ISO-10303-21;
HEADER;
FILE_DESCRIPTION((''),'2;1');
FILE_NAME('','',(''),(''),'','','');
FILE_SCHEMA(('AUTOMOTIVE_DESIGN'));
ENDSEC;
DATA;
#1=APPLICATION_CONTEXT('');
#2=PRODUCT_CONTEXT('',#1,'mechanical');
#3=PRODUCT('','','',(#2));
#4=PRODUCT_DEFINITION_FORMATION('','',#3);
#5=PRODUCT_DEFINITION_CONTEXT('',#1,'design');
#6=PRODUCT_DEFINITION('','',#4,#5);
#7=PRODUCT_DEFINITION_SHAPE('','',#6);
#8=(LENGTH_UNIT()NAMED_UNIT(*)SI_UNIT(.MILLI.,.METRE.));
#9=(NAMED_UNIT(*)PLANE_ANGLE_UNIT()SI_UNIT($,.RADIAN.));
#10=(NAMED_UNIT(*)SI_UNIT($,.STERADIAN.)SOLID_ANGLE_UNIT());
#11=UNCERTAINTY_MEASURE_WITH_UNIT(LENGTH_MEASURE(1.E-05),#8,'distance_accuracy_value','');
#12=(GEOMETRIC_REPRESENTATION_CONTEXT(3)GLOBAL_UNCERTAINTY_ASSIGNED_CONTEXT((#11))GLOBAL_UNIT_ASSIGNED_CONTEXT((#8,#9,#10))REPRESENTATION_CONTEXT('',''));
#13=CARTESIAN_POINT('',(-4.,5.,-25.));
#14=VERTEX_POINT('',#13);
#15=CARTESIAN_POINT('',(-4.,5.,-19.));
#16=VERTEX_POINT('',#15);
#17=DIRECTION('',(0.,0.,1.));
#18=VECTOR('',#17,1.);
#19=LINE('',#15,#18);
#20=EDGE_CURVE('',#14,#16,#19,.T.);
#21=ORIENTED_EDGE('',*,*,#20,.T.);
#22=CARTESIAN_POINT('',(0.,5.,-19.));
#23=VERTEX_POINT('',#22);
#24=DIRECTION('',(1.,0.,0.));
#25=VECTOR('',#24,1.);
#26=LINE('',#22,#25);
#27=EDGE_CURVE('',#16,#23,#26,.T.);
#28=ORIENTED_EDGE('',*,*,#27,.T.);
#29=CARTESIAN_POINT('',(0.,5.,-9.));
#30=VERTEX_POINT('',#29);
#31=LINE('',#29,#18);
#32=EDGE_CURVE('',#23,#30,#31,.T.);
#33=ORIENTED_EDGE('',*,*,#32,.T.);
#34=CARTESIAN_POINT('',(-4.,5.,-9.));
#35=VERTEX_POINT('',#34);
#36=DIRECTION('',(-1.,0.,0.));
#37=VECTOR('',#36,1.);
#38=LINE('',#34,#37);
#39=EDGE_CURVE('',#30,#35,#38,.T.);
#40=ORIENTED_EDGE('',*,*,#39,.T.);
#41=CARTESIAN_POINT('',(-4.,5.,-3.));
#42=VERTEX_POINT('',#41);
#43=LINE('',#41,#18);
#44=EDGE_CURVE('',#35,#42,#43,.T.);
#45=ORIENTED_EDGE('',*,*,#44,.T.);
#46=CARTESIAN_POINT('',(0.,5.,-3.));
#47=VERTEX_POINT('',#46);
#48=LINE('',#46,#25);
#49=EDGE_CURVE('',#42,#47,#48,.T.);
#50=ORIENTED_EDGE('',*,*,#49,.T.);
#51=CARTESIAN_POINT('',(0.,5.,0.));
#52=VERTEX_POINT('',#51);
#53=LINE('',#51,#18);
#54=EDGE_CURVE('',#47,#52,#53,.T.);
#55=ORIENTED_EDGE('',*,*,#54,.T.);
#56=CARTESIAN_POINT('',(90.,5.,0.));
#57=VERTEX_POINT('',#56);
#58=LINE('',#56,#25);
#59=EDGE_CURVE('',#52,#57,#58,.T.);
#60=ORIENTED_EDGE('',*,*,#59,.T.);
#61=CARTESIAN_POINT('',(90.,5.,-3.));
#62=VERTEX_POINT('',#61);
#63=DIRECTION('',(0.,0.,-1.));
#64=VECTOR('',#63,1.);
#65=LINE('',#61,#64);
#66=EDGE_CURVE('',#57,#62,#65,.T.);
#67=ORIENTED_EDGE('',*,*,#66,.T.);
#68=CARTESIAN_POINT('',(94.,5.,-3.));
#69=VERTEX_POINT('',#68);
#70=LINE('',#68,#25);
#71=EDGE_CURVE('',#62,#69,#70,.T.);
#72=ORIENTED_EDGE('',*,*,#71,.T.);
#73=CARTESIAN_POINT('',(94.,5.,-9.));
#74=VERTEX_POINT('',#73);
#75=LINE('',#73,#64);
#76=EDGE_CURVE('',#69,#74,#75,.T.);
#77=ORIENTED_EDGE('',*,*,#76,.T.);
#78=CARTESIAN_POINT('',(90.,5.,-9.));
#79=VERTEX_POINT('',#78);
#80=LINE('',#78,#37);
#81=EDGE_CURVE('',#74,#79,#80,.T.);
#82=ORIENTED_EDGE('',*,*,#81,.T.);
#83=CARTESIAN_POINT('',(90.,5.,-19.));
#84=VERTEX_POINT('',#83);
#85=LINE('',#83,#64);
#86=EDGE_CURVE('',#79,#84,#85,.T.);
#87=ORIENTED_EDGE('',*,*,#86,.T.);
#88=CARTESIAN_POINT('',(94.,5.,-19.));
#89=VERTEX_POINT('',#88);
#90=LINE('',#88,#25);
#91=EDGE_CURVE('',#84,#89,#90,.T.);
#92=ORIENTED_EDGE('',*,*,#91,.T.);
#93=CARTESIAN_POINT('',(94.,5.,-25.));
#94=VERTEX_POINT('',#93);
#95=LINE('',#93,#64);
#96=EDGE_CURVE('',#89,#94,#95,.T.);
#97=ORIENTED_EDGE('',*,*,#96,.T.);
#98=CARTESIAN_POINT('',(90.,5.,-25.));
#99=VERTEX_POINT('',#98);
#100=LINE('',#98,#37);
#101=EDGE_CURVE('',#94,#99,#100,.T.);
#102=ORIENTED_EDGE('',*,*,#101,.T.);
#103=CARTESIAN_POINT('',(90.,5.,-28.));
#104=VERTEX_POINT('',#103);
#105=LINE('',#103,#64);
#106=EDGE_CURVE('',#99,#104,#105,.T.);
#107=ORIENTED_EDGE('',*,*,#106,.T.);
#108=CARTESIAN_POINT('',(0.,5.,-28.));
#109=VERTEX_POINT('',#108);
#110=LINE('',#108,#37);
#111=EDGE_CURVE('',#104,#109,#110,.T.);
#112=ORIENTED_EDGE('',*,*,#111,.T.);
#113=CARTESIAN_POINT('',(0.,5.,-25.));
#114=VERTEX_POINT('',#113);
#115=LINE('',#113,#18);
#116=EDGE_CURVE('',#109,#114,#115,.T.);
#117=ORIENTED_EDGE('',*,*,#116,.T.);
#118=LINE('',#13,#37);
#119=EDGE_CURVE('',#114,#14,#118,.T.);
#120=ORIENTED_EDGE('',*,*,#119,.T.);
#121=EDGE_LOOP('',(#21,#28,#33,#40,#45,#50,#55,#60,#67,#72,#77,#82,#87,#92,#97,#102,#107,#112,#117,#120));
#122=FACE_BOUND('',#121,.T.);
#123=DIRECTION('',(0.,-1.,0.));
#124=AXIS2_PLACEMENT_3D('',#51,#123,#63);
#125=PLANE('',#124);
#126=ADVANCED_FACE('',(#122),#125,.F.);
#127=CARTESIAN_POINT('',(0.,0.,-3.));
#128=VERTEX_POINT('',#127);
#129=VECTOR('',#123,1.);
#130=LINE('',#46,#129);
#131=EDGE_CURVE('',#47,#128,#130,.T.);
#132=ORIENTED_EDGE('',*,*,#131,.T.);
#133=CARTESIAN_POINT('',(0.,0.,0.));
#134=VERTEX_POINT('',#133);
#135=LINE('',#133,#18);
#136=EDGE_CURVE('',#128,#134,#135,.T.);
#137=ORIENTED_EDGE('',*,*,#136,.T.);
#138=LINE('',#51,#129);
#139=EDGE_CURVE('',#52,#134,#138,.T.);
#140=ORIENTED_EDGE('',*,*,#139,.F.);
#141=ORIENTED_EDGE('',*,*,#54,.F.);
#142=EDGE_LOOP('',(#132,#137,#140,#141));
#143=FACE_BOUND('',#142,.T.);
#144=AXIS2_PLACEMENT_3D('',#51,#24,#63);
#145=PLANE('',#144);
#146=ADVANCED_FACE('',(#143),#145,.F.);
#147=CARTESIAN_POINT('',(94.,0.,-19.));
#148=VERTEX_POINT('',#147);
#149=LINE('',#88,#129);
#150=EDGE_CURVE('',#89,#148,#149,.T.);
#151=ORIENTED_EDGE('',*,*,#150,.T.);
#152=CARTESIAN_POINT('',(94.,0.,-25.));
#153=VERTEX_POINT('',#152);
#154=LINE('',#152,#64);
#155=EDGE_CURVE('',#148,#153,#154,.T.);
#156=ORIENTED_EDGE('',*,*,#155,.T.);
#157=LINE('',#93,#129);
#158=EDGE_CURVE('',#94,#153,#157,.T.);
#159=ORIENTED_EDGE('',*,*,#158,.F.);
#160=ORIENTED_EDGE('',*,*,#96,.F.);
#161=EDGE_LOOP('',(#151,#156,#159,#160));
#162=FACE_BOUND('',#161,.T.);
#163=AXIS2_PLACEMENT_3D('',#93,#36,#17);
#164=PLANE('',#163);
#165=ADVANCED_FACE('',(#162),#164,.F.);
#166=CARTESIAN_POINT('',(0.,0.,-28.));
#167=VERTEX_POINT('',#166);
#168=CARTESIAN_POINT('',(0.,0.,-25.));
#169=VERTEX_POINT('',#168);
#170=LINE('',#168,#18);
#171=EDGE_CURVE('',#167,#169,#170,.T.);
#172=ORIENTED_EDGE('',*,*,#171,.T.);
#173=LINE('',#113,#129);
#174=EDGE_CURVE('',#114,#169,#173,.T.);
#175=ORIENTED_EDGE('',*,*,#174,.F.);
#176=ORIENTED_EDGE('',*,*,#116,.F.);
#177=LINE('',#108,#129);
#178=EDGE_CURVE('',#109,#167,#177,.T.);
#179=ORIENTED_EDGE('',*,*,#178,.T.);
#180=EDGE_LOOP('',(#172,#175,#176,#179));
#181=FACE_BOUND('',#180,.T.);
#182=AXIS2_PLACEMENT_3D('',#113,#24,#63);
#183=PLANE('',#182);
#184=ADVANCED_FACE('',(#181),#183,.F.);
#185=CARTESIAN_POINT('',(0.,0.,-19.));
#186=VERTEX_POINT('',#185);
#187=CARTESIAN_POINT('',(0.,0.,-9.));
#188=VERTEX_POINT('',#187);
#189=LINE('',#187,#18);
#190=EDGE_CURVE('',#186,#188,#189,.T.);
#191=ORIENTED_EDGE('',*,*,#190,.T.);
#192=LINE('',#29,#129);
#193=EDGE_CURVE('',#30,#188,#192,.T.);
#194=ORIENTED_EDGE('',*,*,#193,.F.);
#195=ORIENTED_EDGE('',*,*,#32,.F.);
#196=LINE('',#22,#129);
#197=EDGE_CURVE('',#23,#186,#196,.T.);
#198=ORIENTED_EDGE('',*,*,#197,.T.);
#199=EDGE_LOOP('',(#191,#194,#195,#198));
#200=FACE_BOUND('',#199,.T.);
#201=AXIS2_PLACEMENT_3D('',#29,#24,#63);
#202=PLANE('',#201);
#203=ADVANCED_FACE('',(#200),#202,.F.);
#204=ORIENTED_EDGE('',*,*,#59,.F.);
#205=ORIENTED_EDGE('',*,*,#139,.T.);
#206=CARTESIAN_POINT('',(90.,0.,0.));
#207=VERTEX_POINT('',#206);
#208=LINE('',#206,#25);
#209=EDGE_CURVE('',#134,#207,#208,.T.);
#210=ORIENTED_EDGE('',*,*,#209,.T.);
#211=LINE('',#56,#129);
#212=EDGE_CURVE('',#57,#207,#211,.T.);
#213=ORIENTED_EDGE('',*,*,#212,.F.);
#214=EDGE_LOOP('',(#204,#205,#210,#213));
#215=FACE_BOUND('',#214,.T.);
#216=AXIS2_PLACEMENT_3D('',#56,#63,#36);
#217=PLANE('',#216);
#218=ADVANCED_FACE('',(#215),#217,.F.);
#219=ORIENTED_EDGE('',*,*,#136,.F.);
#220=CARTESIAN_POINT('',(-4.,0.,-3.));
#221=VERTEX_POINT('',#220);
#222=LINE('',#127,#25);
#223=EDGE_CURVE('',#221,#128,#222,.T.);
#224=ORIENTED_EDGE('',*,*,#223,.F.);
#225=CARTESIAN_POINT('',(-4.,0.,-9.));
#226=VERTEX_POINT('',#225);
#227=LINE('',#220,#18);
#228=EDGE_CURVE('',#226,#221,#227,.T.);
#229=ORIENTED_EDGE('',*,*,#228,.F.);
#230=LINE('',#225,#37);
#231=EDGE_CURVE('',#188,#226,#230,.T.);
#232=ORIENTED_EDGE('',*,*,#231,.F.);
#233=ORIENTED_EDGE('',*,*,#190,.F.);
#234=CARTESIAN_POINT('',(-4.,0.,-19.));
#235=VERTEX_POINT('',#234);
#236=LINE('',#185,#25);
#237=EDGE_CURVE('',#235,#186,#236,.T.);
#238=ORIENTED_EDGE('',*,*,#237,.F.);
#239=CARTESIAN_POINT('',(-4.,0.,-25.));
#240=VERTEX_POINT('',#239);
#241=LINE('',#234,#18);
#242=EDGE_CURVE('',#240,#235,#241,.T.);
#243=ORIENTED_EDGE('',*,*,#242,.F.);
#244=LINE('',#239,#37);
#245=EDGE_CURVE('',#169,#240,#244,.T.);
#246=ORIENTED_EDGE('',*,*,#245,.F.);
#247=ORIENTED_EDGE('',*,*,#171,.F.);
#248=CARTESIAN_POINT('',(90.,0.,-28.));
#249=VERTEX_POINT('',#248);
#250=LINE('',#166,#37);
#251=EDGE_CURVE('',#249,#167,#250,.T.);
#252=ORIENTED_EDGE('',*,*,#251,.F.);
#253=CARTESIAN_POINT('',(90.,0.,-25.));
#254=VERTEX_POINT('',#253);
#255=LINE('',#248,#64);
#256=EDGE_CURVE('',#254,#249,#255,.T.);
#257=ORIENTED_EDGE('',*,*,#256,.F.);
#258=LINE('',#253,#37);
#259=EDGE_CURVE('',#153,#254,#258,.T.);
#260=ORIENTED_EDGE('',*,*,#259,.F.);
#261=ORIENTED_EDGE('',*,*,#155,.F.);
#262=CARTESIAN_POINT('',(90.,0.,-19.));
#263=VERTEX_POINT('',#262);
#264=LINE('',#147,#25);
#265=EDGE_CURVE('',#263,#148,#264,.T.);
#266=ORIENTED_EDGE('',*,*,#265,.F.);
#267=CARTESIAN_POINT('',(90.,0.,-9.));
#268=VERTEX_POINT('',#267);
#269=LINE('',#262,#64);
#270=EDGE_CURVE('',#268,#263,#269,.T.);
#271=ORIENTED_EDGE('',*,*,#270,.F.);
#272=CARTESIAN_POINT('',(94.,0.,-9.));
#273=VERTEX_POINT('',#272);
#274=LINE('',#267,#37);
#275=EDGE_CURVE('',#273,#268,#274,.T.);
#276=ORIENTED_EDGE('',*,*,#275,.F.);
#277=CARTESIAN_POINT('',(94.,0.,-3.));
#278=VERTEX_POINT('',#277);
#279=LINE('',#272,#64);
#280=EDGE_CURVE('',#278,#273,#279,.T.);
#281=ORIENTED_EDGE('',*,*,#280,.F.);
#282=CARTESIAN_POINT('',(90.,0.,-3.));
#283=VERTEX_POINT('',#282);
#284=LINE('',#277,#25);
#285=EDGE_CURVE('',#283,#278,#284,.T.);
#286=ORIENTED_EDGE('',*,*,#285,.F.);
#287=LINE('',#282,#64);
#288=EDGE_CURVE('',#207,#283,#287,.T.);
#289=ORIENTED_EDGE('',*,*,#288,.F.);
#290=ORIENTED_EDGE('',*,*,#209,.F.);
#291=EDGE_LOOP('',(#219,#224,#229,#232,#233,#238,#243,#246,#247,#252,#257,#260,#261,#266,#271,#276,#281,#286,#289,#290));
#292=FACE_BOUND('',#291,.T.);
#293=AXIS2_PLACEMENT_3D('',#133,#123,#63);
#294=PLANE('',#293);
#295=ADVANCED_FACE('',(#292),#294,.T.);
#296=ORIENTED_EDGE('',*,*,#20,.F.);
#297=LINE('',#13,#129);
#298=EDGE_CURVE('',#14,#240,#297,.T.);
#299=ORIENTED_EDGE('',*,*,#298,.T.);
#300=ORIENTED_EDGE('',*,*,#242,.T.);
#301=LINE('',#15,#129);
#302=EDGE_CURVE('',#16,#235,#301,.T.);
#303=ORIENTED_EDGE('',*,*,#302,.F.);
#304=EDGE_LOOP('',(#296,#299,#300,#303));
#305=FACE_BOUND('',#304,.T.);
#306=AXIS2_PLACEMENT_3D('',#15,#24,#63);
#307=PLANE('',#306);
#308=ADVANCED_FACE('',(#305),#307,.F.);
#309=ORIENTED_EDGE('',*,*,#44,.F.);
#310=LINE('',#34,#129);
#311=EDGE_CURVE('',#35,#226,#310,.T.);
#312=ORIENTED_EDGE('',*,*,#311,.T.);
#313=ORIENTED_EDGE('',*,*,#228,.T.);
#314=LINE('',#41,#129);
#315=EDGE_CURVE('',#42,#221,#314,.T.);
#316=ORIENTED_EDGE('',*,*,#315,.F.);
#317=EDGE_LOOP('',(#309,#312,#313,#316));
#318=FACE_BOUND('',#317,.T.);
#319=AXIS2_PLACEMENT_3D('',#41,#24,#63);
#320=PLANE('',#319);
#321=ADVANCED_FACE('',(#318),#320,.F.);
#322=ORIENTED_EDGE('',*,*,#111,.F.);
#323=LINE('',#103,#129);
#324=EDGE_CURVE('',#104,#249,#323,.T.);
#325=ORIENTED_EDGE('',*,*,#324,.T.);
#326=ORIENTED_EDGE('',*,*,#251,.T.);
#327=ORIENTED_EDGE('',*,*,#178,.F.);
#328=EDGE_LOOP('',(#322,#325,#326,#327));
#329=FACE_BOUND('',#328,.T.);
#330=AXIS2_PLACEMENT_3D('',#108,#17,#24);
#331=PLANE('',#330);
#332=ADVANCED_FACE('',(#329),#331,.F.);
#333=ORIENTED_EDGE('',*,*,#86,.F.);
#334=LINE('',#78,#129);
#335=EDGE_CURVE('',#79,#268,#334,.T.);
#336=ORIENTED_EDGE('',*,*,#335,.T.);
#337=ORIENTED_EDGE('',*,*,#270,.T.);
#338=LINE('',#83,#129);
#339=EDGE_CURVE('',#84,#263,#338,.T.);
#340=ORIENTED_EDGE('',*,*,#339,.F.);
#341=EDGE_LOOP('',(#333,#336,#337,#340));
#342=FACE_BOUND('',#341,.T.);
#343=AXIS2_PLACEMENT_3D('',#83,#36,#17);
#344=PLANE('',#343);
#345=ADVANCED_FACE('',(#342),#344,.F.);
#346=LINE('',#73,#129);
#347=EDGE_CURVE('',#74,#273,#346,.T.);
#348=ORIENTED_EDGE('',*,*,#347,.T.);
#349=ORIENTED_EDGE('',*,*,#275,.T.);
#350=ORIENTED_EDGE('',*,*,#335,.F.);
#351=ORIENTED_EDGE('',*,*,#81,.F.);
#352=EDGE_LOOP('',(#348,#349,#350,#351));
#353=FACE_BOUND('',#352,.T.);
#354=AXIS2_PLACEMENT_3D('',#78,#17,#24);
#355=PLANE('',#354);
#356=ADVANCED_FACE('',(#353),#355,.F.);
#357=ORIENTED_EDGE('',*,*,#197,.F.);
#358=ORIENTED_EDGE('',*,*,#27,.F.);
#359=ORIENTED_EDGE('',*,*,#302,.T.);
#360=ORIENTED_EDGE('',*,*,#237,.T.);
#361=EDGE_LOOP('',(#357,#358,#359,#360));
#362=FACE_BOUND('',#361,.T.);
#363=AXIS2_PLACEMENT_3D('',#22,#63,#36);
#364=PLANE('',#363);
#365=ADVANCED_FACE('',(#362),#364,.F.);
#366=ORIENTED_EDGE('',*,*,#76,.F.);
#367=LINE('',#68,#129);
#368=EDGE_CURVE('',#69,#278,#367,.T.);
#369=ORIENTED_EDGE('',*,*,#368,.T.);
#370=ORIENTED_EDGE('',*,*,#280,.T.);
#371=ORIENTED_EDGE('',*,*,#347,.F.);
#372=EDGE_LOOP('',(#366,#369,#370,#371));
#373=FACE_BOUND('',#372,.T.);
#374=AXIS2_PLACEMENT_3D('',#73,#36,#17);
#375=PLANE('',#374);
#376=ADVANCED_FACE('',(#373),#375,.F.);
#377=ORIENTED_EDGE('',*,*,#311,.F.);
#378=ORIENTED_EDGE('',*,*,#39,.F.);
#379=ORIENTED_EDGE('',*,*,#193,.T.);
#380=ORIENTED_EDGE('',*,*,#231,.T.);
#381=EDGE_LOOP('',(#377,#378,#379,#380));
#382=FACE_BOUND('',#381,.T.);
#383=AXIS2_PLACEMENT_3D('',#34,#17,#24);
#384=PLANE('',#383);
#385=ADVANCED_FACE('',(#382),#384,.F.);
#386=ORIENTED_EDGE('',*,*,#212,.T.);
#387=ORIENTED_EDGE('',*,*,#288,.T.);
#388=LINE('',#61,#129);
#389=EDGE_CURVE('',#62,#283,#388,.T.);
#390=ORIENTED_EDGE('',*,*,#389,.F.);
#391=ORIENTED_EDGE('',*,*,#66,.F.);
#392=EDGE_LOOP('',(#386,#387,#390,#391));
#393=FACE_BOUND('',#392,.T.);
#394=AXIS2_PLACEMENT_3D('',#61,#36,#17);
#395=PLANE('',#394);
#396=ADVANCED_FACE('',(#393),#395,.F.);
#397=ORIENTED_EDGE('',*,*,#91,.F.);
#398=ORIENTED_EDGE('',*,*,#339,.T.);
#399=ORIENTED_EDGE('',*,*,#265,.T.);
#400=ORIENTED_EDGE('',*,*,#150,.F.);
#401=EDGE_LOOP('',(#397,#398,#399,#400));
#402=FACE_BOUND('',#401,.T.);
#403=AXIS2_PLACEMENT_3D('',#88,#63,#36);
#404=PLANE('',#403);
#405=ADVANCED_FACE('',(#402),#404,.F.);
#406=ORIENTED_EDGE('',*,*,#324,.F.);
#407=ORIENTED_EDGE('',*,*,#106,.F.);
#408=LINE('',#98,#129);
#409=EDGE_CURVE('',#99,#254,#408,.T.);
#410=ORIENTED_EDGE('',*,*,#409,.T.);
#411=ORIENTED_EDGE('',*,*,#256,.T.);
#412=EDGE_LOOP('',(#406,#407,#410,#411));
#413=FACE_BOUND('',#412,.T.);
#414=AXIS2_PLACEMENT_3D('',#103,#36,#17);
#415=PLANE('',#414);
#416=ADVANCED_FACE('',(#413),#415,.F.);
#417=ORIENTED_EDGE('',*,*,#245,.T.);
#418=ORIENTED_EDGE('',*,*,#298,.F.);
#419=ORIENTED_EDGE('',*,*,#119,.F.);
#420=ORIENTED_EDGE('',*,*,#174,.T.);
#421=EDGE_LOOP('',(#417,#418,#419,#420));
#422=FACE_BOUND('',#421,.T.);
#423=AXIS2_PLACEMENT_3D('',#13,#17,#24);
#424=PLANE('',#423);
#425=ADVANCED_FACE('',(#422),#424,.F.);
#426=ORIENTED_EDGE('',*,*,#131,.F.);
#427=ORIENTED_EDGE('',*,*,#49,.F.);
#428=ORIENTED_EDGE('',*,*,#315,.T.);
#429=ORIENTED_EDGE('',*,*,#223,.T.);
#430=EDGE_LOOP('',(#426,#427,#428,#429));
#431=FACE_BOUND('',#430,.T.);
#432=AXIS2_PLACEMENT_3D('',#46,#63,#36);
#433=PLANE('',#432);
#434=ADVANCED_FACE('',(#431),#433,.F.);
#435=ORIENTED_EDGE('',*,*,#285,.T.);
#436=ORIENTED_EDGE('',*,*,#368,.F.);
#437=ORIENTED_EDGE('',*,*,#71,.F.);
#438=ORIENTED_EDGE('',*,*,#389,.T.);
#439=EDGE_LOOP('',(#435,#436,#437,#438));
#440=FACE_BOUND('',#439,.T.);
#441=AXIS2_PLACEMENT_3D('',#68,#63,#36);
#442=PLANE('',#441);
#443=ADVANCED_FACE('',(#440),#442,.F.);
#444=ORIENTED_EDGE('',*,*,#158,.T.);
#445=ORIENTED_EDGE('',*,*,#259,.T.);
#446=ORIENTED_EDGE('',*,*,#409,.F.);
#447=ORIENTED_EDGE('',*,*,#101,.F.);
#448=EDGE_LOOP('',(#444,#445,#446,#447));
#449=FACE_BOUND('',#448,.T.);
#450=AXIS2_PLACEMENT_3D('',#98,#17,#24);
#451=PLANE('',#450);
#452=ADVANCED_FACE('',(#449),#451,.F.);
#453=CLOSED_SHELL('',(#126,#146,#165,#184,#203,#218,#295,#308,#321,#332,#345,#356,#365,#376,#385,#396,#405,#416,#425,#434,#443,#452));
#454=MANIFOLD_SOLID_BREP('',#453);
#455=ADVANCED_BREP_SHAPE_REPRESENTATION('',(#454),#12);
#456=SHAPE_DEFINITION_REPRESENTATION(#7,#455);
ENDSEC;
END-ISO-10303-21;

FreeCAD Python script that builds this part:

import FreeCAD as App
import Part
import Sketcher
from FreeCAD import Vector
Q = App.Units.Quantity

doc = App.newDocument("Part")
params = doc.addObject("Spreadsheet::Sheet", "Params")
for row, (alias, value) in enumerate([
    ("sketch1_width", "90 mm"),
    ("sketch1_width2", "4 mm"),
    ("sketch1_height", "3 mm"),
    ("sketch1_height2", "6 mm"),
    ("sketch1_height3", "10 mm"),
    ("pad1_length", "5 mm"),
], start=1):
    params.set(f"A{row}", alias)
    params.set(f"B{row}", "=" + value)
    params.setAlias(f"B{row}", alias)

body = doc.addObject("PartDesign::Body", "Body")

# Sketch on XZ plane
sketch1 = body.newObject("Sketcher::SketchObject", "Sketch")
sketch1.AttachmentSupport = (doc.getObject("XZ_Plane"), [""])
sketch1.MapMode = "FlatFace"
sketch1.addGeometry([
    Part.LineSegment(Vector(0, -3, 0), Vector(0, 0, 0)),  # 0
    Part.LineSegment(Vector(0, 0, 0), Vector(90, 0, 0)),  # 1
    Part.LineSegment(Vector(90, 0, 0), Vector(90, -3, 0)),  # 2
    Part.LineSegment(Vector(90, -3, 0), Vector(94, -3, 0)),  # 3
    Part.LineSegment(Vector(94, -3, 0), Vector(94, -9, 0)),  # 4
    Part.LineSegment(Vector(94, -9, 0), Vector(90, -9, 0)),  # 5
    Part.LineSegment(Vector(90, -9, 0), Vector(90, -19, 0)),  # 6
    Part.LineSegment(Vector(90, -19, 0), Vector(94, -19, 0)),  # 7
    Part.LineSegment(Vector(94, -19, 0), Vector(94, -25, 0)),  # 8
    Part.LineSegment(Vector(94, -25, 0), Vector(90, -25, 0)),  # 9
    Part.LineSegment(Vector(90, -25, 0), Vector(90, -28, 0)),  # 10
    Part.LineSegment(Vector(90, -28, 0), Vector(0, -28, 0)),  # 11
    Part.LineSegment(Vector(0, -28, 0), Vector(0, -25, 0)),  # 12
    Part.LineSegment(Vector(0, -25, 0), Vector(-4, -25, 0)),  # 13
    Part.LineSegment(Vector(-4, -25, 0), Vector(-4, -19, 0)),  # 14
    Part.LineSegment(Vector(-4, -19, 0), Vector(0, -19, 0)),  # 15
    Part.LineSegment(Vector(0, -19, 0), Vector(0, -9, 0)),  # 16
    Part.LineSegment(Vector(0, -9, 0), Vector(-4, -9, 0)),  # 17
    Part.LineSegment(Vector(-4, -9, 0), Vector(-4, -3, 0)),  # 18
    Part.LineSegment(Vector(-4, -3, 0), Vector(0, -3, 0)),  # 19
], False)
sketch1.addConstraint([
    Sketcher.Constraint("Coincident", 0, 2, 1, 1),
    Sketcher.Constraint("Coincident", 1, 2, 2, 1),
    Sketcher.Constraint("Coincident", 2, 2, 3, 1),
    Sketcher.Constraint("Coincident", 3, 2, 4, 1),
    Sketcher.Constraint("Coincident", 4, 2, 5, 1),
    Sketcher.Constraint("Coincident", 5, 2, 6, 1),
    Sketcher.Constraint("Coincident", 6, 2, 7, 1),
    Sketcher.Constraint("Coincident", 7, 2, 8, 1),
    Sketcher.Constraint("Coincident", 8, 2, 9, 1),
    Sketcher.Constraint("Coincident", 9, 2, 10, 1),
    Sketcher.Constraint("Coincident", 10, 2, 11, 1),
    Sketcher.Constraint("Coincident", 11, 2, 12, 1),
    Sketcher.Constraint("Coincident", 12, 2, 13, 1),
    Sketcher.Constraint("Coincident", 13, 2, 14, 1),
    Sketcher.Constraint("Coincident", 14, 2, 15, 1),
    Sketcher.Constraint("Coincident", 15, 2, 16, 1),
    Sketcher.Constraint("Coincident", 16, 2, 17, 1),
    Sketcher.Constraint("Coincident", 17, 2, 18, 1),
    Sketcher.Constraint("Coincident", 18, 2, 19, 1),
    Sketcher.Constraint("Coincident", 19, 2, 0, 1),
    Sketcher.Constraint("Vertical", 0),
    Sketcher.Constraint("Horizontal", 1),
    Sketcher.Constraint("Vertical", 2),
    Sketcher.Constraint("Horizontal", 3),
    Sketcher.Constraint("Vertical", 4),
    Sketcher.Constraint("Horizontal", 5),
    Sketcher.Constraint("Vertical", 6),
    Sketcher.Constraint("Horizontal", 7),
    Sketcher.Constraint("Vertical", 8),
    Sketcher.Constraint("Horizontal", 9),
    Sketcher.Constraint("Vertical", 10),
    Sketcher.Constraint("Horizontal", 11),
    Sketcher.Constraint("Vertical", 12),
    Sketcher.Constraint("Horizontal", 13),
    Sketcher.Constraint("Vertical", 14),
    Sketcher.Constraint("Horizontal", 15),
    Sketcher.Constraint("Vertical", 16),
    Sketcher.Constraint("Horizontal", 17),
    Sketcher.Constraint("Vertical", 18),
    Sketcher.Constraint("Horizontal", 19),
    Sketcher.Constraint("Coincident", 0, 2, -1, 1),
    Sketcher.Constraint("PointOnObject", 11, 2, -2),
    Sketcher.Constraint("PointOnObject", 15, 2, -2),
    Sketcher.Constraint("Horizontal", 9, 2, 12, 2),
    Sketcher.Constraint("Horizontal", 7, 2, 14, 2),
    Sketcher.Constraint("Horizontal", 5, 2, 16, 2),
    Sketcher.Constraint("Horizontal", 3, 2, 18, 2),
    Sketcher.Constraint("Vertical", 2, 2, 5, 2),
    Sketcher.Constraint("Vertical", 4, 2, 7, 2),
    Sketcher.Constraint("Vertical", 6, 2, 9, 2),
    Sketcher.Constraint("Vertical", 14, 2, 17, 2),
    Sketcher.Constraint("Equal", 9, 13),
    Sketcher.Constraint("Equal", 4, 8),
    Sketcher.Constraint("Equal", 2, 10),
    Sketcher.Constraint("DistanceX", 1, 1, 1, 2, Q("90 mm")),
    Sketcher.Constraint("DistanceX", 3, 1, 3, 2, Q("4 mm")),
    Sketcher.Constraint("DistanceY", 0, 1, 0, 2, Q("3 mm")),
    Sketcher.Constraint("DistanceY", 4, 2, 4, 1, Q("6 mm")),
    Sketcher.Constraint("DistanceY", 6, 2, 6, 1, Q("10 mm")),
])
sketch1.setExpression("Constraints[54]", "Params.sketch1_width")
sketch1.setExpression("Constraints[55]", "Params.sketch1_width2")
sketch1.setExpression("Constraints[56]", "Params.sketch1_height")
sketch1.setExpression("Constraints[57]", "Params.sketch1_height2")
sketch1.setExpression("Constraints[58]", "Params.sketch1_height3")
pad1 = body.newObject("PartDesign::Pad", "Pad")
pad1.Profile = sketch1
pad1.setExpression("Length", "Params.pad1_length")
pad1.Reversed = True

doc.recompute()
